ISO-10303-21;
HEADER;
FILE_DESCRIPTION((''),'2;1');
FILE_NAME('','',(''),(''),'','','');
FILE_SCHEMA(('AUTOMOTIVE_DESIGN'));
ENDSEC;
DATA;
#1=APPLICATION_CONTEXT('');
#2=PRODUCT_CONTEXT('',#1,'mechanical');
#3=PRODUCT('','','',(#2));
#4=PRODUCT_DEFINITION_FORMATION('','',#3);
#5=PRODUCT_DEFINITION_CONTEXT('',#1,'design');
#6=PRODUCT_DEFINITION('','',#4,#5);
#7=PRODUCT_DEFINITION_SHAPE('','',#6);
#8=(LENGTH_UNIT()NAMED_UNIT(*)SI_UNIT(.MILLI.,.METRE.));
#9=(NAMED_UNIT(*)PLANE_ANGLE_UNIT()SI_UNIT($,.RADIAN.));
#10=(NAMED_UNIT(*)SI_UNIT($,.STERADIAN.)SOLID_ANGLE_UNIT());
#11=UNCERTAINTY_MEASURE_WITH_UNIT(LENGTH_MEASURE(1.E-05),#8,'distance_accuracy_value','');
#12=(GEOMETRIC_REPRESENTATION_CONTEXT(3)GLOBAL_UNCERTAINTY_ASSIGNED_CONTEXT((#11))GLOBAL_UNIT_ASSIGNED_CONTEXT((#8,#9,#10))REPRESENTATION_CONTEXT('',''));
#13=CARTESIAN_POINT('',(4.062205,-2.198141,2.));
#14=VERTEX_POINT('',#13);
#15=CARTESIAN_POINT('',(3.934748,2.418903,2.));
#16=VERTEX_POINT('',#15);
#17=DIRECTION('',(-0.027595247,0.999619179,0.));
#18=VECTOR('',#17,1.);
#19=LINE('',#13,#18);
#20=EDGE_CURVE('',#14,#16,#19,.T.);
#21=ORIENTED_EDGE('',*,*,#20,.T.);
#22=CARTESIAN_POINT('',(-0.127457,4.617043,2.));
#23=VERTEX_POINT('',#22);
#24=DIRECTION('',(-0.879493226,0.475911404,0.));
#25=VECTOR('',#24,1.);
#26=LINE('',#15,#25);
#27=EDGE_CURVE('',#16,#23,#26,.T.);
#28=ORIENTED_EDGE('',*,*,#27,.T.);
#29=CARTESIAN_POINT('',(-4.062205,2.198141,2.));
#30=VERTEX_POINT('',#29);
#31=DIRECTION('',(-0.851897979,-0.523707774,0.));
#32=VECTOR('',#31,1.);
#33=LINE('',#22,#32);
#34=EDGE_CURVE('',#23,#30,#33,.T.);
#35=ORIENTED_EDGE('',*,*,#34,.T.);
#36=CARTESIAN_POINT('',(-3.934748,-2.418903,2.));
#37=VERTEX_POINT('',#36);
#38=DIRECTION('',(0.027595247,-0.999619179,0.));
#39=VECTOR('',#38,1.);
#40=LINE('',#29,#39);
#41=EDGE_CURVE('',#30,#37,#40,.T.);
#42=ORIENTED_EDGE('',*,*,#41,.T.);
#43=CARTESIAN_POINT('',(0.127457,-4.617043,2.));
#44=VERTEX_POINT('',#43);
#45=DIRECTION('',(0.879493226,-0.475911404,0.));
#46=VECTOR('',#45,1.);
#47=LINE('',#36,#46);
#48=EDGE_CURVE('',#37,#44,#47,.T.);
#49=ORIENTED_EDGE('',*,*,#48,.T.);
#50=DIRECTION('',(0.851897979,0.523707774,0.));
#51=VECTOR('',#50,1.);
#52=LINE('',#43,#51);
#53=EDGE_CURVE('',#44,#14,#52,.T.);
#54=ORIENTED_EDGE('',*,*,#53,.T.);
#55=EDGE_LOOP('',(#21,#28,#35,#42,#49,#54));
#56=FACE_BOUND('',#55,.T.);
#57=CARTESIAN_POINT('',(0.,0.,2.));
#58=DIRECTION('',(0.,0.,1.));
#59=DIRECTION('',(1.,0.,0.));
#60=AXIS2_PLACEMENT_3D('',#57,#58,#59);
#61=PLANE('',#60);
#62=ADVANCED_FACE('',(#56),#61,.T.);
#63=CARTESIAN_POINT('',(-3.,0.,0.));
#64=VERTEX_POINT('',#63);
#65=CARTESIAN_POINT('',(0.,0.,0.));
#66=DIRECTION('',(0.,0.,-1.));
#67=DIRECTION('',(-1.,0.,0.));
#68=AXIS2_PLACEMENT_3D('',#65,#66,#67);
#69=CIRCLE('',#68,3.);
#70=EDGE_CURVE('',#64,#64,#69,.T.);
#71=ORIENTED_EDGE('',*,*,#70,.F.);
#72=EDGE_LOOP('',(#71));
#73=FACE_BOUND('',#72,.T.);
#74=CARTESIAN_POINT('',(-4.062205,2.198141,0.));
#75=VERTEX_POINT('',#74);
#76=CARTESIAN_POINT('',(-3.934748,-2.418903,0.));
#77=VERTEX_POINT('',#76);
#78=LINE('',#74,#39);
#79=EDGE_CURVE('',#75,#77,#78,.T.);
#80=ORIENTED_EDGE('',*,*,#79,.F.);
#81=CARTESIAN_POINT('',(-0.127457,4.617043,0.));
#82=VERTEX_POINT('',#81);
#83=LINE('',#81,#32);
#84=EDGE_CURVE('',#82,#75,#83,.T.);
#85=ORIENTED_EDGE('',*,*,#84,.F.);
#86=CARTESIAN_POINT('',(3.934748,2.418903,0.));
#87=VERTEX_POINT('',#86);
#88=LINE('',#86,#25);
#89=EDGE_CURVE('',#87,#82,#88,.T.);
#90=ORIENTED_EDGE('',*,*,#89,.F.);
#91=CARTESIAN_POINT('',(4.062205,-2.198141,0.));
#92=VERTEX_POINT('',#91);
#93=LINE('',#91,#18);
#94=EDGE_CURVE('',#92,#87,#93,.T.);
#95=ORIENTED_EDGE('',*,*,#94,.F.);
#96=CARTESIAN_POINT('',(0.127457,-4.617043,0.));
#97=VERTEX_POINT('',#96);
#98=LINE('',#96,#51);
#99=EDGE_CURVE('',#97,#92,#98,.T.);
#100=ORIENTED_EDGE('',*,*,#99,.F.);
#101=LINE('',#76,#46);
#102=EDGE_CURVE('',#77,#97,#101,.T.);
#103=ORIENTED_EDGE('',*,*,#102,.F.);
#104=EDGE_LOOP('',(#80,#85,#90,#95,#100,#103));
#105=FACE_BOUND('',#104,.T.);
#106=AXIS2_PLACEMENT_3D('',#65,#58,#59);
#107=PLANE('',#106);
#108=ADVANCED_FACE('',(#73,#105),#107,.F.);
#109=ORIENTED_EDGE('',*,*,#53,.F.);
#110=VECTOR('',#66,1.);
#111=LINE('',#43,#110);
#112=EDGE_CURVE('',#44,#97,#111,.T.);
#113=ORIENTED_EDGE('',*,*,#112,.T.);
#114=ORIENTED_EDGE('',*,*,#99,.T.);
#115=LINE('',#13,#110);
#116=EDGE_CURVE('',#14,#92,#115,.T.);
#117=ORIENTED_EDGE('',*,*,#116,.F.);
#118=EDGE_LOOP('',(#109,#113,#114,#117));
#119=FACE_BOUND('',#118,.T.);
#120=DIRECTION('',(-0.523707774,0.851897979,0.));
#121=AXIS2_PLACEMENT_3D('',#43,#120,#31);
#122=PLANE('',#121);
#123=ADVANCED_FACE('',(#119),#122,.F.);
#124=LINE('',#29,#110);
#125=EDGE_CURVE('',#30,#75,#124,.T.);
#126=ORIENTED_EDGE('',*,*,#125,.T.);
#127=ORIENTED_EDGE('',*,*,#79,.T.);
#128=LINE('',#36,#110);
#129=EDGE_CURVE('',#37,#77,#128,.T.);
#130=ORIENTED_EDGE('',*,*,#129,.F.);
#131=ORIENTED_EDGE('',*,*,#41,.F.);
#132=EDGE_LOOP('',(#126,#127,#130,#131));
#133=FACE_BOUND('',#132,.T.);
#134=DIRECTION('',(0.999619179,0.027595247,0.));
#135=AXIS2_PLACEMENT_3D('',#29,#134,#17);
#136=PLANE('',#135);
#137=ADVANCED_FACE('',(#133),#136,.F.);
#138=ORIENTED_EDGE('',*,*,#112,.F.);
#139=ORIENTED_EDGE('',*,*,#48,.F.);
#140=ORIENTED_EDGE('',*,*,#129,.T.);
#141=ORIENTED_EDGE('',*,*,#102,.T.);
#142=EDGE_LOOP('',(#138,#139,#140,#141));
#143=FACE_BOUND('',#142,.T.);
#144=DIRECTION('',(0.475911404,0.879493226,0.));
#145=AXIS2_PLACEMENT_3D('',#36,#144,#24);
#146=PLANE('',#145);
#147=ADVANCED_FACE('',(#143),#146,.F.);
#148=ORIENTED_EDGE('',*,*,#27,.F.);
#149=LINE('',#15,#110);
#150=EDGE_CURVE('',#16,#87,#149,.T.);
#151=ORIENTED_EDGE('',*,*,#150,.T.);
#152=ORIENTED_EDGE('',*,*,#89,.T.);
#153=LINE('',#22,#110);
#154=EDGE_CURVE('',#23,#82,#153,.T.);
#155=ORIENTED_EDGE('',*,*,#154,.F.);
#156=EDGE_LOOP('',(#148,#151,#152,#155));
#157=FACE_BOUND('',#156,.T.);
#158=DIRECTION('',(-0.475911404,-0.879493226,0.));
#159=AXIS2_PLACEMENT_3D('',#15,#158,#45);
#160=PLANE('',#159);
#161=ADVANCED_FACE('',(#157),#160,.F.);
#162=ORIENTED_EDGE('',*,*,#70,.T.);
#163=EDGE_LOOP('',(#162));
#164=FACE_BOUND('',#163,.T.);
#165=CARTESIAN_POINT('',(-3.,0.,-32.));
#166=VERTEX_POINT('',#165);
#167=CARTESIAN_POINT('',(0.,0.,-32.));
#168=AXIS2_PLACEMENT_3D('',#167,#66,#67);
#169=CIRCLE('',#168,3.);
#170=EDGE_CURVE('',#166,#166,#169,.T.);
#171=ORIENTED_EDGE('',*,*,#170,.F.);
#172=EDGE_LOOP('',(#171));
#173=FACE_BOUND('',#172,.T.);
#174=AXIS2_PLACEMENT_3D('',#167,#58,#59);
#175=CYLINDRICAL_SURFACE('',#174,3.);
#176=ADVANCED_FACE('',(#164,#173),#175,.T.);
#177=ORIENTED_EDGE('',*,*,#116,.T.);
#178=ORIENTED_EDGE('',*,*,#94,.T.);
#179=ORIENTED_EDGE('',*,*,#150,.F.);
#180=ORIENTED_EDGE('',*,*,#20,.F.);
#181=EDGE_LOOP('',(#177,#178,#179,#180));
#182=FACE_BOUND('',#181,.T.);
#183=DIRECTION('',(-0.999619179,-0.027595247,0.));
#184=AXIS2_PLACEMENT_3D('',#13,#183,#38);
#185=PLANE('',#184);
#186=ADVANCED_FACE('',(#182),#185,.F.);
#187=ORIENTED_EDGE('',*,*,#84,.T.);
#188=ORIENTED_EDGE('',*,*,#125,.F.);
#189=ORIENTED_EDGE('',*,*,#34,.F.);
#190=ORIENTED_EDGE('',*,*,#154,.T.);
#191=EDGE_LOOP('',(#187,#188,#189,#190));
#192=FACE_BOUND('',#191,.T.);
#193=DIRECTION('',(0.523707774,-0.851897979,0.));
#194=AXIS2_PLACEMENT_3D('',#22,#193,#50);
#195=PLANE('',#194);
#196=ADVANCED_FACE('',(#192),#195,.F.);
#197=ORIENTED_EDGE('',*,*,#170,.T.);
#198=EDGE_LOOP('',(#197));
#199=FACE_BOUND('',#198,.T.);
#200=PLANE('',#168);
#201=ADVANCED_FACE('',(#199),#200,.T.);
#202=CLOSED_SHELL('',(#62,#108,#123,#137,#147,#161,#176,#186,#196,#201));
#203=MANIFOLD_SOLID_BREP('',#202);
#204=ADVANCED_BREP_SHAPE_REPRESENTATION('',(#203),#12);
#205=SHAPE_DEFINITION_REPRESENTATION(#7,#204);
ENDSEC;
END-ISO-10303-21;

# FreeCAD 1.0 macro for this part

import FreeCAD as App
import Part
import Sketcher
Q = App.Units.Quantity


def add_polygon(sketch, points):
    """Adds a closed chain of lines whose ends are joined by coincident constraints."""
    first, n = sketch.GeometryCount, len(points)
    for a, b in zip(points, points[1:] + points[:1]):
        sketch.addGeometry(Part.LineSegment(App.Vector(*a, 0), App.Vector(*b, 0)), False)
    for i in range(n):
        sketch.addConstraint(Sketcher.Constraint("Coincident", first + i, 2, first + (i + 1) % n, 1))

doc = App.newDocument("Part")
body = doc.addObject("PartDesign::Body", "Body")

sketch1 = doc.addObject("Sketcher::SketchObject", "Sketch")
body.addObject(sketch1)
sketch1.AttachmentSupport = (doc.XY_Plane, [""])
sketch1.MapMode = "FlatFace"
add_polygon(sketch1, [(3.9, 2.4), (-0.1, 4.6), (-4.1, 2.2), (-3.9, -2.4), (0.1, -4.6), (4.1, -2.2)])
sketch1.addConstraint(Sketcher.Constraint("Symmetric", 0, 2, 3, 2, -1, 1))
sketch1.addConstraint(Sketcher.Constraint("Symmetric", 1, 2, 4, 2, -1, 1))
sketch1.addConstraint(Sketcher.Constraint("Symmetric", 2, 2, 5, 2, -1, 1))
sketch1.addConstraint(Sketcher.Constraint("Equal", 0, 1))
sketch1.addConstraint(Sketcher.Constraint("Equal", 1, 2))
sketch1.addConstraint(Sketcher.Constraint("DistanceY", -1, 1, 1, 2, Q("2.198141 mm")))
sketch1.addConstraint(Sketcher.Constraint("DistanceX", 2, 2, -1, 1, Q("3.934748 mm")))
sketch1.addConstraint(Sketcher.Constraint("DistanceX", 1, 2, 0, 2, Q("3.934748 mm")))
sketch1.addConstraint(Sketcher.Constraint("DistanceX", 2, 2, 0, 2, Q("3.807291 mm")))
pad1 = doc.addObject("PartDesign::Pad", "Pad")
body.addObject(pad1)
pad1.Profile = sketch1
pad1.Length = 2

sketch2 = doc.addObject("Sketcher::SketchObject", "Sketch001")
body.addObject(sketch2)
sketch2.AttachmentSupport = (doc.XY_Plane, [""])
sketch2.MapMode = "FlatFace"
sketch2.addGeometry(Part.Circle(App.Vector(0, 0, 0), App.Vector(0, 0, 1), 3), False)
sketch2.addConstraint(Sketcher.Constraint("Coincident", 0, 3, -1, 1))
sketch2.addConstraint(Sketcher.Constraint("Diameter", 0, Q("6 mm")))
pad2 = doc.addObject("PartDesign::Pad", "Pad001")
body.addObject(pad2)
pad2.Profile = sketch2
pad2.Length = 32
pad2.Reversed = True

doc.recompute()
